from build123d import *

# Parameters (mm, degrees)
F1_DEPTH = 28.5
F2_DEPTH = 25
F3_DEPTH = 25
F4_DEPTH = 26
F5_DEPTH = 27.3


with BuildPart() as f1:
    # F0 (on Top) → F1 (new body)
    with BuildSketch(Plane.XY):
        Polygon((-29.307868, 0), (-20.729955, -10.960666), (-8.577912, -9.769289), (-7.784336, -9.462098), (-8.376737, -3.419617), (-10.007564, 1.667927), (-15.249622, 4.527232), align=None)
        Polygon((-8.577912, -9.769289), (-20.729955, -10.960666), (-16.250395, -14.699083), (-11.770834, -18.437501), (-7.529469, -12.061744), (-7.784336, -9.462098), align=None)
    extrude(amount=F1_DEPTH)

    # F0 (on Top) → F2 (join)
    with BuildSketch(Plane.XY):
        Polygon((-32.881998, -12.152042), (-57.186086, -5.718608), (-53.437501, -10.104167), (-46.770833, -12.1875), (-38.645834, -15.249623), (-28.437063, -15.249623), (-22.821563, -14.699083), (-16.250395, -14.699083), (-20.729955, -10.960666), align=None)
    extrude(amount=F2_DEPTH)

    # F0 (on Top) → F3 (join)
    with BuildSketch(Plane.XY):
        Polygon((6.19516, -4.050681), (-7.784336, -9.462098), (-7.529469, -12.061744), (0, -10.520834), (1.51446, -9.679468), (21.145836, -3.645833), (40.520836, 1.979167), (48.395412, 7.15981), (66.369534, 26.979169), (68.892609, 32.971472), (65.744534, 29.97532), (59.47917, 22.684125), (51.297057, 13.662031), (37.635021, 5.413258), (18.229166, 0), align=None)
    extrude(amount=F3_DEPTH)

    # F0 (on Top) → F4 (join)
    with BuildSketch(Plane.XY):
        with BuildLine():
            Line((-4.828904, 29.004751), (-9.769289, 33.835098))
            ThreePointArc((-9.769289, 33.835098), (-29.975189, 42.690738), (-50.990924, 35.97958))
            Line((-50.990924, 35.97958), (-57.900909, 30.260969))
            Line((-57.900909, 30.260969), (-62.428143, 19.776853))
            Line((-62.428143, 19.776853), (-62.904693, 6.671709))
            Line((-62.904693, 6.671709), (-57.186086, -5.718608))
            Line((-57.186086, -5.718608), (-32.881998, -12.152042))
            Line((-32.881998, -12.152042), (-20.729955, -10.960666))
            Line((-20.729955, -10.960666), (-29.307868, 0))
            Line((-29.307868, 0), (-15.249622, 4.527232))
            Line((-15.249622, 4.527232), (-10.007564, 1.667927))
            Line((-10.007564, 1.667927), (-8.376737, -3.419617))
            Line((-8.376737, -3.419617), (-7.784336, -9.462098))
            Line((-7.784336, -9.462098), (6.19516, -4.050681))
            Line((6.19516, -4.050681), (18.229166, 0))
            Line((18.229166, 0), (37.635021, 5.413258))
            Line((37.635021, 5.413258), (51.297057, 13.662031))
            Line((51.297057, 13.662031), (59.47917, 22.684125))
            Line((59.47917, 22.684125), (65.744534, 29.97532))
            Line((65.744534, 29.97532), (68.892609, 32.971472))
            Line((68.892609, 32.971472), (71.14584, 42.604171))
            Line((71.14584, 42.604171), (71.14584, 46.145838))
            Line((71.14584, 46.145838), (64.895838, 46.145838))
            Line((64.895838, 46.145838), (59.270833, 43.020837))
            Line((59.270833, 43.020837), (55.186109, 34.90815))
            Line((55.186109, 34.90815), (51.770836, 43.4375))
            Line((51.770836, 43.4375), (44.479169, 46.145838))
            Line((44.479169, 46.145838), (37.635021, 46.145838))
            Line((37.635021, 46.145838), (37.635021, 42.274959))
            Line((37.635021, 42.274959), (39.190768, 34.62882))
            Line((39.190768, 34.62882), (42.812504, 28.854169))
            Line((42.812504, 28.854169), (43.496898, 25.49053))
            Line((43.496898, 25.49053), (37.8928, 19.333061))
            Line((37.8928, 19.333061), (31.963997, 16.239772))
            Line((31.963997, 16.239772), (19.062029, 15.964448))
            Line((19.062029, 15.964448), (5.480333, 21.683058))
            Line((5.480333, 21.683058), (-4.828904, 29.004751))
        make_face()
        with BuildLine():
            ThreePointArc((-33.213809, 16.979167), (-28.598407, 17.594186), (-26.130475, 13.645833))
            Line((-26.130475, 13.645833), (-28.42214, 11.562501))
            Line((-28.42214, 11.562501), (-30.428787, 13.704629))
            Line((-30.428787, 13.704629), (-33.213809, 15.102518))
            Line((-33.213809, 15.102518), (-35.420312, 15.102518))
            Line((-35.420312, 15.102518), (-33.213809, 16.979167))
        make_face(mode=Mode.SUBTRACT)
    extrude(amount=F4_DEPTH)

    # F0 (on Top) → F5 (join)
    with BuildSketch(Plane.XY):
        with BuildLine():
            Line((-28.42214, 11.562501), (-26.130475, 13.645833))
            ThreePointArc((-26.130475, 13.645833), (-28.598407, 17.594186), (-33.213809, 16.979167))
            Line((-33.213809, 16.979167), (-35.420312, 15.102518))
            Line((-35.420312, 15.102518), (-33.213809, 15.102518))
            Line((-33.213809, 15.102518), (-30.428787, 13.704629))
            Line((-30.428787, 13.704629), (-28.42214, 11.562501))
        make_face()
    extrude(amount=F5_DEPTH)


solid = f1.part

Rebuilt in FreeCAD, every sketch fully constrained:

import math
import FreeCAD as App
import Part
import Sketcher

doc = App.newDocument("Part")
body = doc.addObject("PartDesign::Body", "Body")

sketch1 = body.newObject("Sketcher::SketchObject", "Sketch")
sketch1.AttachmentSupport = (doc.getObject("XY_Plane"), [""])
sketch1.MapMode = "FlatFace"
sketch1.addGeometry([
    Part.LineSegment(App.Vector(-29.3, 0, 0), App.Vector(-20.7, -11, 0)),
    Part.LineSegment(App.Vector(-20.7, -11, 0), App.Vector(-16.3, -14.7, 0)),
    Part.LineSegment(App.Vector(-16.3, -14.7, 0), App.Vector(-11.8, -18.4, 0)),
    Part.LineSegment(App.Vector(-11.8, -18.4, 0), App.Vector(-7.5, -12.1, 0)),
    Part.LineSegment(App.Vector(-7.5, -12.1, 0), App.Vector(-7.8, -9.5, 0)),
    Part.LineSegment(App.Vector(-7.8, -9.5, 0), App.Vector(-8.4, -3.4, 0)),
    Part.LineSegment(App.Vector(-8.4, -3.4, 0), App.Vector(-10, 1.7, 0)),
    Part.LineSegment(App.Vector(-10, 1.7, 0), App.Vector(-15.2, 4.5, 0)),
    Part.LineSegment(App.Vector(-15.2, 4.5, 0), App.Vector(-29.3, 0, 0)),
], False)
sketch1.addConstraint([
    Sketcher.Constraint("Coincident", 0, 2, 1, 1),
    Sketcher.Constraint("Coincident", 1, 2, 2, 1),
    Sketcher.Constraint("Coincident", 2, 2, 3, 1),
    Sketcher.Constraint("Coincident", 3, 2, 4, 1),
    Sketcher.Constraint("Coincident", 4, 2, 5, 1),
    Sketcher.Constraint("Coincident", 5, 2, 6, 1),
    Sketcher.Constraint("Coincident", 6, 2, 7, 1),
    Sketcher.Constraint("Coincident", 7, 2, 8, 1),
    Sketcher.Constraint("Coincident", 8, 2, 0, 1),
    Sketcher.Constraint("PointOnObject", 8, 2, -1),
    Sketcher.Constraint("Parallel", 1, 2),
    Sketcher.Constraint("Parallel", 4, 5),
    Sketcher.Constraint("Equal", 1, 2),
    Sketcher.Constraint("DistanceY", 2, 2, -1, 1, 18.437501),
    Sketcher.Constraint("DistanceX", 2, 2, 4, 2, 3.986498),
    Sketcher.Constraint("DistanceX", 5, 2, 4, 2, 0.592401),
    Sketcher.Constraint("Distance", 1, 5.834571),
    Sketcher.Constraint("Distance", 3, 7.65764),
    Sketcher.Constraint("Distance", 4, 2.61211),
    Sketcher.Constraint("Distance", 5, 6.071451),
    Sketcher.Constraint("Distance", 8, 14.769228),
    Sketcher.Constraint("DistanceX", 3, 2, -1, 1, 7.529469),
    Sketcher.Constraint("DistanceY", -1, 1, 7, 2, 4.527232),
    Sketcher.Constraint("DistanceX", 0, 2, 1, 2, 4.47956),
    Sketcher.Constraint("DistanceX", 6, 2, 4, 2, 2.223228),
    Sketcher.Constraint("DistanceY", 3, 2, 6, 2, 13.729671),
    Sketcher.Constraint("DistanceX", 8, 2, 5, 2, 20.931131),
])
pad1 = body.newObject("PartDesign::Pad", "Pad")
pad1.Profile = sketch1
pad1.Length = 28.5

sketch2 = body.newObject("Sketcher::SketchObject", "Sketch001")
sketch2.AttachmentSupport = (doc.getObject("XY_Plane"), [""])
sketch2.MapMode = "FlatFace"
sketch2.addGeometry([
    Part.LineSegment(App.Vector(-32.881998, -12.152042, 0), App.Vector(-57.186086, -5.718608, 0)),
    Part.LineSegment(App.Vector(-57.186086, -5.718608, 0), App.Vector(-53.437501, -10.104167, 0)),
    Part.LineSegment(App.Vector(-53.437501, -10.104167, 0), App.Vector(-46.770833, -12.1875, 0)),
    Part.LineSegment(App.Vector(-46.770833, -12.1875, 0), App.Vector(-38.645834, -15.249623, 0)),
    Part.LineSegment(App.Vector(-38.645834, -15.249623, 0), App.Vector(-28.437063, -15.249623, 0)),
    Part.LineSegment(App.Vector(-28.437063, -15.249623, 0), App.Vector(-22.821563, -14.699083, 0)),
    Part.LineSegment(App.Vector(-22.821563, -14.699083, 0), App.Vector(-16.250395, -14.699083, 0)),
    Part.LineSegment(App.Vector(-16.250395, -14.699083, 0), App.Vector(-20.729955, -10.960666, 0)),
    Part.LineSegment(App.Vector(-20.729955, -10.960666, 0), App.Vector(-32.881998, -12.152042, 0)),
], False)
sketch2.addConstraint([
    Sketcher.Constraint("Coincident", 0, 2, 1, 1),
    Sketcher.Constraint("Coincident", 1, 2, 2, 1),
    Sketcher.Constraint("Coincident", 2, 2, 3, 1),
    Sketcher.Constraint("Coincident", 3, 2, 4, 1),
    Sketcher.Constraint("Coincident", 4, 2, 5, 1),
    Sketcher.Constraint("Coincident", 5, 2, 6, 1),
    Sketcher.Constraint("Coincident", 6, 2, 7, 1),
    Sketcher.Constraint("Coincident", 7, 2, 8, 1),
    Sketcher.Constraint("Coincident", 8, 2, 0, 1),
    Sketcher.Constraint("Horizontal", 4),
    Sketcher.Constraint("Horizontal", 6),
    Sketcher.Constraint("DistanceX", 8, 2, -1, 1, 32.881998),
    Sketcher.Constraint("DistanceX", 2, 2, 3, 2, 8.124999),
    Sketcher.Constraint("DistanceX", 4, 1, 4, 2, 10.208771),
    Sketcher.Constraint("DistanceX", 1, 2, -1, 1, 53.437501),
    Sketcher.Constraint("DistanceY", 2, 2, -1, 1, 12.1875),
    Sketcher.Constraint("DistanceX", 4, 2, 5, 2, 5.6155),
    Sketcher.Constraint("Distance", 3, 8.682869),
    Sketcher.Constraint("Distance", 7, 5.834571),
    Sketcher.Constraint("DistanceX", 6, 1, 6, 2, 6.571168),
    Sketcher.Constraint("DistanceY", 1, 2, 0, 2, 4.385559),
    Sketcher.Constraint("DistanceY", 4, 2, 5, 2, 0.55054),
    Sketcher.Constraint("DistanceX", 5, 2, 7, 2, 2.091608),
    Sketcher.Constraint("DistanceY", 4, 2, 8, 2, 3.097581),
    Sketcher.Constraint("Distance", 0, 25.141157),
    Sketcher.Constraint("Distance", 1, 5.769317),
    Sketcher.Constraint("Distance", 2, 6.984607),
])
pad2 = body.newObject("PartDesign::Pad", "Pad001")
pad2.Profile = sketch2
pad2.Length = 25

sketch3 = body.newObject("Sketcher::SketchObject", "Sketch002")
sketch3.AttachmentSupport = (doc.getObject("XY_Plane"), [""])
sketch3.MapMode = "FlatFace"
sketch3.addGeometry([
    Part.LineSegment(App.Vector(6.2, -4.1, 0), App.Vector(-7.8, -9.5, 0)),
    Part.LineSegment(App.Vector(-7.8, -9.5, 0), App.Vector(-7.5, -12.1, 0)),
    Part.LineSegment(App.Vector(-7.5, -12.1, 0), App.Vector(0, -10.5, 0)),
    Part.LineSegment(App.Vector(0, -10.5, 0), App.Vector(1.5, -9.7, 0)),
    Part.LineSegment(App.Vector(1.5, -9.7, 0), App.Vector(21.1, -3.6, 0)),
    Part.LineSegment(App.Vector(21.1, -3.6, 0), App.Vector(40.5, 2, 0)),
    Part.LineSegment(App.Vector(40.5, 2, 0), App.Vector(48.4, 7.2, 0)),
    Part.LineSegment(App.Vector(48.4, 7.2, 0), App.Vector(66.4, 27, 0)),
    Part.LineSegment(App.Vector(66.4, 27, 0), App.Vector(68.9, 33, 0)),
    Part.LineSegment(App.Vector(68.9, 33, 0), App.Vector(65.7, 30, 0)),
    Part.LineSegment(App.Vector(65.7, 30, 0), App.Vector(59.5, 22.7, 0)),
    Part.LineSegment(App.Vector(59.5, 22.7, 0), App.Vector(51.3, 13.7, 0)),
    Part.LineSegment(App.Vector(51.3, 13.7, 0), App.Vector(37.6, 5.4, 0)),
    Part.LineSegment(App.Vector(37.6, 5.4, 0), App.Vector(18.2, 0, 0)),
    Part.LineSegment(App.Vector(18.2, 0, 0), App.Vector(6.2, -4.1, 0)),
], False)
sketch3.addConstraint([
    Sketcher.Constraint("Coincident", 0, 2, 1, 1),
    Sketcher.Constraint("Coincident", 1, 2, 2, 1),
    Sketcher.Constraint("Coincident", 2, 2, 3, 1),
    Sketcher.Constraint("Coincident", 3, 2, 4, 1),
    Sketcher.Constraint("Coincident", 4, 2, 5, 1),
    Sketcher.Constraint("Coincident", 5, 2, 6, 1),
    Sketcher.Constraint("Coincident", 6, 2, 7, 1),
    Sketcher.Constraint("Coincident", 7, 2, 8, 1),
    Sketcher.Constraint("Coincident", 8, 2, 9, 1),
    Sketcher.Constraint("Coincident", 9, 2, 10, 1),
    Sketcher.Constraint("Coincident", 10, 2, 11, 1),
    Sketcher.Constraint("Coincident", 11, 2, 12, 1),
    Sketcher.Constraint("Coincident", 12, 2, 13, 1),
    Sketcher.Constraint("Coincident", 13, 2, 14, 1),
    Sketcher.Constraint("Coincident", 14, 2, 0, 1),
    Sketcher.Constraint("PointOnObject", 2, 2, -2),
    Sketcher.Constraint("PointOnObject", 13, 2, -1),
    Sketcher.Constraint("Parallel", 7, 11),
    Sketcher.Constraint("DistanceY", 5, 2, 7, 2, 25.000002),
    Sketcher.Constraint("DistanceY", 2, 2, 5, 2, 12.500001),
    Sketcher.Constraint("DistanceY", 2, 2, 4, 2, 6.875001),
    Sketcher.Constraint("DistanceX", 4, 2, 5, 2, 19.375),
    Sketcher.Constraint("DistanceX", 9, 2, 7, 2, 0.625),
    Sketcher.Constraint("DistanceX", 3, 2, 14, 2, 4.6807),
    Sketcher.Constraint("Distance", 0, 14.990322),
    Sketcher.Constraint("Distance", 1, 2.61211),
    Sketcher.Constraint("Distance", 3, 1.73248),
    Sketcher.Constraint("Distance", 7, 26.75586),
    Sketcher.Constraint("Distance", 10, 9.61334),
    Sketcher.Constraint("Distance", 12, 15.959119),
    Sketcher.Constraint("DistanceX", 1, 2, -1, 1, 7.529469),
    Sketcher.Constraint("DistanceX", -1, 1, 3, 2, 1.51446),
    Sketcher.Constraint("DistanceY", -1, 1, 6, 2, 7.15981),
    Sketcher.Constraint("DistanceY", -1, 1, 7, 2, 26.979169),
    Sketcher.Constraint("DistanceX", -1, 1, 8, 2, 68.892609),
    Sketcher.Constraint("DistanceY", -1, 1, 9, 2, 29.97532),
    Sketcher.Constraint("DistanceX", -1, 1, 10, 2, 59.47917),
    Sketcher.Constraint("DistanceY", -1, 1, 11, 2, 13.662031),
    Sketcher.Constraint("DistanceX", -1, 1, 12, 2, 37.635021),
    Sketcher.Constraint("DistanceY", 14, 2, -1, 1, 4.050681),
    Sketcher.Constraint("DistanceY", 1, 2, 2, 2, 1.54091),
    Sketcher.Constraint("DistanceX", 0, 2, 4, 2, 28.930172),
    Sketcher.Constraint("DistanceX", 0, 2, 6, 2, 56.179748),
    Sketcher.Constraint("DistanceY", 6, 2, 8, 2, 25.811662),
    Sketcher.Constraint("DistanceX", 13, 2, 4, 2, 2.91667),
])
pad3 = body.newObject("PartDesign::Pad", "Pad002")
pad3.Profile = sketch3
pad3.Length = 25

sketch4 = body.newObject("Sketcher::SketchObject", "Sketch003")
sketch4.AttachmentSupport = (doc.getObject("XY_Plane"), [""])
sketch4.MapMode = "FlatFace"
sketch4.addGeometry([
    Part.LineSegment(App.Vector(-4.8, 29, 0), App.Vector(-9.8, 33.8, 0)),
    Part.ArcOfCircle(Part.Circle(App.Vector(-31.6, 11.5, 0), App.Vector(0, 0, 1), 31.2), math.radians(46), math.radians(128)),
    Part.LineSegment(App.Vector(-51, 36, 0), App.Vector(-57.9, 30.3, 0)),
    Part.LineSegment(App.Vector(-57.9, 30.3, 0), App.Vector(-62.4, 19.8, 0)),
    Part.LineSegment(App.Vector(-62.4, 19.8, 0), App.Vector(-62.9, 6.7, 0)),
    Part.LineSegment(App.Vector(-62.9, 6.7, 0), App.Vector(-57.2, -5.7, 0)),
    Part.LineSegment(App.Vector(-57.2, -5.7, 0), App.Vector(-32.9, -12.2, 0)),
    Part.LineSegment(App.Vector(-32.9, -12.2, 0), App.Vector(-20.7, -11, 0)),
    Part.LineSegment(App.Vector(-20.7, -11, 0), App.Vector(-29.3, 0, 0)),
    Part.LineSegment(App.Vector(-29.3, 0, 0), App.Vector(-15.2, 4.5, 0)),
    Part.LineSegment(App.Vector(-15.2, 4.5, 0), App.Vector(-10, 1.7, 0)),
    Part.LineSegment(App.Vector(-10, 1.7, 0), App.Vector(-8.4, -3.4, 0)),
    Part.LineSegment(App.Vector(-8.4, -3.4, 0), App.Vector(-7.8, -9.5, 0)),
    Part.LineSegment(App.Vector(-7.8, -9.5, 0), App.Vector(6.2, -4.1, 0)),
    Part.LineSegment(App.Vector(6.2, -4.1, 0), App.Vector(18.2, 0, 0)),
    Part.LineSegment(App.Vector(18.2, 0, 0), App.Vector(37.6, 5.4, 0)),
    Part.LineSegment(App.Vector(37.6, 5.4, 0), App.Vector(51.3, 13.7, 0)),
    Part.LineSegment(App.Vector(51.3, 13.7, 0), App.Vector(59.5, 22.7, 0)),
    Part.LineSegment(App.Vector(59.5, 22.7, 0), App.Vector(65.7, 30, 0)),
    Part.LineSegment(App.Vector(65.7, 30, 0), App.Vector(68.9, 33, 0)),
    Part.LineSegment(App.Vector(68.9, 33, 0), App.Vector(71.1, 42.6, 0)),
    Part.LineSegment(App.Vector(71.1, 42.6, 0), App.Vector(71.1, 46.1, 0)),
    Part.LineSegment(App.Vector(71.1, 46.1, 0), App.Vector(64.9, 46.1, 0)),
    Part.LineSegment(App.Vector(64.9, 46.1, 0), App.Vector(59.3, 43, 0)),
    Part.LineSegment(App.Vector(59.3, 43, 0), App.Vector(55.2, 34.9, 0)),
    Part.LineSegment(App.Vector(55.2, 34.9, 0), App.Vector(51.8, 43.4, 0)),
    Part.LineSegment(App.Vector(51.8, 43.4, 0), App.Vector(44.5, 46.1, 0)),
    Part.LineSegment(App.Vector(44.5, 46.1, 0), App.Vector(37.6, 46.1, 0)),
    Part.LineSegment(App.Vector(37.6, 46.1, 0), App.Vector(37.6, 42.3, 0)),
    Part.LineSegment(App.Vector(37.6, 42.3, 0), App.Vector(39.2, 34.6, 0)),
    Part.LineSegment(App.Vector(39.2, 34.6, 0), App.Vector(42.8, 28.9, 0)),
    Part.LineSegment(App.Vector(42.8, 28.9, 0), App.Vector(43.5, 25.5, 0)),
    Part.LineSegment(App.Vector(43.5, 25.5, 0), App.Vector(37.9, 19.3, 0)),
    Part.LineSegment(App.Vector(37.9, 19.3, 0), App.Vector(32, 16.2, 0)),
    Part.LineSegment(App.Vector(32, 16.2, 0), App.Vector(19.1, 16, 0)),
    Part.LineSegment(App.Vector(19.1, 16, 0), App.Vector(5.5, 21.7, 0)),
    Part.LineSegment(App.Vector(5.5, 21.7, 0), App.Vector(-4.8, 29, 0)),
    Part.LineSegment(App.Vector(-35.4, 15.1, 0), App.Vector(-33.2, 17, 0)),
    Part.ArcOfCircle(Part.Circle(App.Vector(-30.4, 13.7, 0), App.Vector(0, 0, 1), 4.3), math.radians(-1), math.radians(130)),
    Part.LineSegment(App.Vector(-26.1, 13.6, 0), App.Vector(-28.4, 11.6, 0)),
    Part.LineSegment(App.Vector(-28.4, 11.6, 0), App.Vector(-30.4, 13.7, 0)),
    Part.LineSegment(App.Vector(-30.4, 13.7, 0), App.Vector(-33.2, 15.1, 0)),
    Part.LineSegment(App.Vector(-33.2, 15.1, 0), App.Vector(-35.4, 15.1, 0)),
], False)
sketch4.addConstraint([
    Sketcher.Constraint("Tangent", 0, 2, 1, 1),
    Sketcher.Constraint("Coincident", 1, 2, 2, 1),
    Sketcher.Constraint("Coincident", 2, 2, 3, 1),
    Sketcher.Constraint("Coincident", 3, 2, 4, 1),
    Sketcher.Constraint("Coincident", 4, 2, 5, 1),
    Sketcher.Constraint("Coincident", 5, 2, 6, 1),
    Sketcher.Constraint("Coincident", 6, 2, 7, 1),
    Sketcher.Constraint("Coincident", 7, 2, 8, 1),
    Sketcher.Constraint("Coincident", 8, 2, 9, 1),
    Sketcher.Constraint("Coincident", 9, 2, 10, 1),
    Sketcher.Constraint("Coincident", 10, 2, 11, 1),
    Sketcher.Constraint("Coincident", 11, 2, 12, 1),
    Sketcher.Constraint("Coincident", 12, 2, 13, 1),
    Sketcher.Constraint("Coincident", 13, 2, 14, 1),
    Sketcher.Constraint("Coincident", 14, 2, 15, 1),
    Sketcher.Constraint("Coincident", 15, 2, 16, 1),
    Sketcher.Constraint("Coincident", 16, 2, 17, 1),
    Sketcher.Constraint("Coincident", 17, 2, 18, 1),
    Sketcher.Constraint("Coincident", 18, 2, 19, 1),
    Sketcher.Constraint("Coincident", 19, 2, 20, 1),
    Sketcher.Constraint("Coincident", 20, 2, 21, 1),
    Sketcher.Constraint("Coincident", 21, 2, 22, 1),
    Sketcher.Constraint("Coincident", 22, 2, 23, 1),
    Sketcher.Constraint("Coincident", 23, 2, 24, 1),
    Sketcher.Constraint("Coincident", 24, 2, 25, 1),
    Sketcher.Constraint("Coincident", 25, 2, 26, 1),
    Sketcher.Constraint("Coincident", 26, 2, 27, 1),
    Sketcher.Constraint("Coincident", 27, 2, 28, 1),
    Sketcher.Constraint("Coincident", 28, 2, 29, 1),
    Sketcher.Constraint("Coincident", 29, 2, 30, 1),
    Sketcher.Constraint("Coincident", 30, 2, 31, 1),
    Sketcher.Constraint("Coincident", 31, 2, 32, 1),
    Sketcher.Constraint("Coincident", 32, 2, 33, 1),
    Sketcher.Constraint("Coincident", 33, 2, 34, 1),
    Sketcher.Constraint("Coincident", 34, 2, 35, 1),
    Sketcher.Constraint("Coincident", 35, 2, 36, 1),
    Sketcher.Constraint("Coincident", 36, 2, 0, 1),
    Sketcher.Constraint("Tangent", 37, 2, 38, 2),
    Sketcher.Constraint("Coincident", 38, 1, 39, 1),
    Sketcher.Constraint("Coincident", 39, 2, 40, 1),
    Sketcher.Constraint("Coincident", 40, 2, 41, 1),
    Sketcher.Constraint("Coincident", 41, 2, 42, 1),
    Sketcher.Constraint("Coincident", 42, 2, 37, 1),
    Sketcher.Constraint("Vertical", 21),
    Sketcher.Constraint("Horizontal", 22),
    Sketcher.Constraint("Horizontal", 27),
    Sketcher.Constraint("Vertical", 28),
    Sketcher.Constraint("Horizontal", 42),
    Sketcher.Constraint("Coincident", 40, 2, 38, 3),
    Sketcher.Constraint("PointOnObject", 8, 2, -1),
    Sketcher.Constraint("PointOnObject", 14, 2, -1),
    Sketcher.Constraint("Perpendicular", 7, 12),
    Sketcher.Constraint("Parallel", 29, 31),
    Sketcher.Constraint("Horizontal", 22, 2, 26, 2),
    Sketcher.Constraint("Vertical", 15, 2, 27, 2),
    Sketcher.Constraint("Vertical", 37, 2, 41, 2),
    Sketcher.Constraint("DistanceX", 6, 2, -1, 1, 32.881998),
    Sketcher.Constraint("Radius", 1, 31.223087),
    Sketcher.Constraint("Radius", 38, 4.298714),
    Sketcher.Constraint("DistanceY", 13, 2, 18, 2, 34.026001),
    Sketcher.Constraint("DistanceY", 23, 2, 22, 2, 3.125001),
    Sketcher.Constraint("DistanceX", 25, 2, 22, 2, 13.125002),
    Sketcher.Constraint("Distance", 26, 7.7784),
    Sketcher.Constraint("DistanceY", 28, 2, 28, 1, 3.870879),
    Sketcher.Constraint("DistanceY", -1, 1, 0, 2, 33.835098),
    Sketcher.Constraint("DistanceY", -1, 1, 25, 2, 43.4375),
    Sketcher.Constraint("DistanceX", -1, 1, 31, 2, 43.496898),
    Sketcher.Constraint("DistanceX", -1, 1, 32, 2, 37.8928),
    Sketcher.Constraint("DistanceY", -1, 1, 39, 2, 11.562501),
    Sketcher.Constraint("DistanceX", 38, 3, 0, 2, 20.659498),
    Sketcher.Constraint("DistanceX", 5, 2, 38, 3, 26.757299),
    Sketcher.Constraint("DistanceX", 1, 3, 9, 2, 16.347699),
    Sketcher.Constraint("DistanceX", 11, 2, 12, 2, 0.592401),
    Sketcher.Constraint("DistanceX", 12, 2, 14, 2, 26.013502),
    Sketcher.Constraint("DistanceY", 19, 2, 20, 2, 9.632699),
    Sketcher.Constraint("DistanceX", 23, 2, 18, 2, 6.473701),
    Sketcher.Constraint("DistanceX", 24, 2, 19, 2, 13.7065),
    Sketcher.Constraint("DistanceX", 29, 2, 26, 2, 5.288401),
    Sketcher.Constraint("DistanceY", 16, 2, 31, 2, 11.828499),
    Sketcher.Constraint("DistanceX", 33, 2, 31, 2, 11.532901),
    Sketcher.Constraint("DistanceY", 9, 2, 38, 1, 9.118601),
    Sketcher.Constraint("DistanceY", 1, 3, 41, 2, 3.592701),
    Sketcher.Constraint("Distance", 0, 6.909389),
    Sketcher.Constraint("Distance", 3, 11.419831),
    Sketcher.Constraint("Distance", 9, 14.769228),
    Sketcher.Constraint("Distance", 12, 6.071451),
    Sketcher.Constraint("Distance", 13, 14.990322),
    Sketcher.Constraint("Distance", 16, 15.959119),
    Sketcher.Constraint("Distance", 18, 9.61334),
    Sketcher.Constraint("Distance", 20, 9.892722),
    Sketcher.Constraint("Distance", 30, 6.816419),
    Sketcher.Constraint("Distance", 31, 3.432559),
    Sketcher.Constraint("Distance", 35, 14.736518),
    Sketcher.Constraint("Distance", 37, 2.89663),
    Sketcher.Constraint("Distance", 40, 2.935191),
    Sketcher.Constraint("Distance", 41, 3.116158),
    Sketcher.Constraint("DistanceX", 22, 2, 22, 1, 6.250002),
    Sketcher.Constraint("DistanceX", 27, 2, 27, 1, 6.844148),
    Sketcher.Constraint("DistanceY", 21, 1, 21, 2, 3.541667),
    Sketcher.Constraint("DistanceX", 1, 3, -1, 1, 31.597321),
    Sketcher.Constraint("DistanceY", -1, 1, 38, 3, 13.704629),
    Sketcher.Constraint("DistanceY", -1, 1, 1, 2, 35.97958),
    Sketcher.Constraint("DistanceX", 2, 2, -1, 1, 57.900909),
    Sketcher.Constraint("DistanceY", -1, 1, 2, 2, 30.260969),
    Sketcher.Constraint("DistanceY", -1, 1, 4, 2, 6.671709),
    Sketcher.Constraint("DistanceY", -1, 1, 9, 2, 4.527232),
    Sketcher.Constraint("DistanceX", -1, 1, 13, 2, 6.19516),
    Sketcher.Constraint("DistanceY", 13, 2, -1, 1, 4.050681),
    Sketcher.Constraint("DistanceX", -1, 1, 15, 2, 37.635021),
    Sketcher.Constraint("DistanceY", -1, 1, 16, 2, 13.662031),
    Sketcher.Constraint("DistanceX", -1, 1, 17, 2, 59.47917),
    Sketcher.Constraint("DistanceX", -1, 1, 19, 2, 68.892609),
    Sketcher.Constraint("DistanceY", -1, 1, 24, 2, 34.90815),
    Sketcher.Constraint("DistanceY", -1, 1, 32, 2, 19.333061),
    Sketcher.Constraint("DistanceY", -1, 1, 33, 2, 16.239772),
    Sketcher.Constraint("DistanceX", -1, 1, 34, 2, 19.062029),
    Sketcher.Constraint("DistanceY", -1, 1, 34, 2, 15.964448),
    Sketcher.Constraint("DistanceX", 3, 2, 1, 2, 11.437219),
    Sketcher.Constraint("DistanceX", 4, 2, 3, 2, 0.47655),
    Sketcher.Constraint("DistanceY", 5, 2, 3, 2, 25.495461),
    Sketcher.Constraint("DistanceY", 6, 2, 1, 3, 23.661859),
    Sketcher.Constraint("DistanceX", 5, 2, 7, 2, 36.456131),
    Sketcher.Constraint("DistanceX", 7, 2, 10, 2, 10.722391),
    Sketcher.Constraint("DistanceY", 10, 2, 1, 3, 9.84189),
    Sketcher.Constraint("DistanceY", 11, 2, 9, 2, 7.946849),
    Sketcher.Constraint("DistanceY", 13, 2, 15, 2, 9.463939),
    Sketcher.Constraint("DistanceX", 14, 2, 18, 2, 47.515368),
    Sketcher.Constraint("DistanceY", 34, 2, 35, 2, 5.71861),
])
pad4 = body.newObject("PartDesign::Pad", "Pad003")
pad4.Profile = sketch4
pad4.Length = 26

sketch5 = body.newObject("Sketcher::SketchObject", "Sketch004")
sketch5.AttachmentSupport = (doc.getObject("XY_Plane"), [""])
sketch5.MapMode = "FlatFace"
sketch5.addGeometry([
    Part.LineSegment(App.Vector(-28.4, 11.6, 0), App.Vector(-26.1, 13.6, 0)),
    Part.ArcOfCircle(Part.Circle(App.Vector(-30.4, 13.7, 0), App.Vector(0, 0, 1), 4.3), math.radians(-1), math.radians(130)),
    Part.LineSegment(App.Vector(-33.2, 17, 0), App.Vector(-35.4, 15.1, 0)),
    Part.LineSegment(App.Vector(-35.4, 15.1, 0), App.Vector(-33.2, 15.1, 0)),
    Part.LineSegment(App.Vector(-33.2, 15.1, 0), App.Vector(-30.4, 13.7, 0)),
    Part.LineSegment(App.Vector(-30.4, 13.7, 0), App.Vector(-28.4, 11.6, 0)),
], False)
sketch5.addConstraint([
    Sketcher.Constraint("Coincident", 0, 2, 1, 1),
    Sketcher.Constraint("Tangent", 1, 2, 2, 1),
    Sketcher.Constraint("Coincident", 2, 2, 3, 1),
    Sketcher.Constraint("Coincident", 3, 2, 4, 1),
    Sketcher.Constraint("Coincident", 4, 2, 5, 1),
    Sketcher.Constraint("Coincident", 5, 2, 0, 1),
    Sketcher.Constraint("Horizontal", 3),
    Sketcher.Constraint("Coincident", 4, 2, 1, 3),
    Sketcher.Constraint("Vertical", 1, 2, 3, 2),
    Sketcher.Constraint("Radius", 1, 4.298714),
    Sketcher.Constraint("DistanceY", -1, 1, 5, 2, 11.562501),
    Sketcher.Constraint("Distance", 2, 2.89663),
    Sketcher.Constraint("Distance", 4, 3.116158),
    Sketcher.Constraint("Distance", 5, 2.935191),
    Sketcher.Constraint("DistanceY", -1, 1, 1, 3, 13.704629),
    Sketcher.Constraint("DistanceX", 1, 2, -1, 1, 33.213809),
    Sketcher.Constraint("DistanceX", 4, 2, 0, 2, 4.298312),
])
pad5 = body.newObject("PartDesign::Pad", "Pad004")
pad5.Profile = sketch5
pad5.Length = 27.3

doc.recompute()
